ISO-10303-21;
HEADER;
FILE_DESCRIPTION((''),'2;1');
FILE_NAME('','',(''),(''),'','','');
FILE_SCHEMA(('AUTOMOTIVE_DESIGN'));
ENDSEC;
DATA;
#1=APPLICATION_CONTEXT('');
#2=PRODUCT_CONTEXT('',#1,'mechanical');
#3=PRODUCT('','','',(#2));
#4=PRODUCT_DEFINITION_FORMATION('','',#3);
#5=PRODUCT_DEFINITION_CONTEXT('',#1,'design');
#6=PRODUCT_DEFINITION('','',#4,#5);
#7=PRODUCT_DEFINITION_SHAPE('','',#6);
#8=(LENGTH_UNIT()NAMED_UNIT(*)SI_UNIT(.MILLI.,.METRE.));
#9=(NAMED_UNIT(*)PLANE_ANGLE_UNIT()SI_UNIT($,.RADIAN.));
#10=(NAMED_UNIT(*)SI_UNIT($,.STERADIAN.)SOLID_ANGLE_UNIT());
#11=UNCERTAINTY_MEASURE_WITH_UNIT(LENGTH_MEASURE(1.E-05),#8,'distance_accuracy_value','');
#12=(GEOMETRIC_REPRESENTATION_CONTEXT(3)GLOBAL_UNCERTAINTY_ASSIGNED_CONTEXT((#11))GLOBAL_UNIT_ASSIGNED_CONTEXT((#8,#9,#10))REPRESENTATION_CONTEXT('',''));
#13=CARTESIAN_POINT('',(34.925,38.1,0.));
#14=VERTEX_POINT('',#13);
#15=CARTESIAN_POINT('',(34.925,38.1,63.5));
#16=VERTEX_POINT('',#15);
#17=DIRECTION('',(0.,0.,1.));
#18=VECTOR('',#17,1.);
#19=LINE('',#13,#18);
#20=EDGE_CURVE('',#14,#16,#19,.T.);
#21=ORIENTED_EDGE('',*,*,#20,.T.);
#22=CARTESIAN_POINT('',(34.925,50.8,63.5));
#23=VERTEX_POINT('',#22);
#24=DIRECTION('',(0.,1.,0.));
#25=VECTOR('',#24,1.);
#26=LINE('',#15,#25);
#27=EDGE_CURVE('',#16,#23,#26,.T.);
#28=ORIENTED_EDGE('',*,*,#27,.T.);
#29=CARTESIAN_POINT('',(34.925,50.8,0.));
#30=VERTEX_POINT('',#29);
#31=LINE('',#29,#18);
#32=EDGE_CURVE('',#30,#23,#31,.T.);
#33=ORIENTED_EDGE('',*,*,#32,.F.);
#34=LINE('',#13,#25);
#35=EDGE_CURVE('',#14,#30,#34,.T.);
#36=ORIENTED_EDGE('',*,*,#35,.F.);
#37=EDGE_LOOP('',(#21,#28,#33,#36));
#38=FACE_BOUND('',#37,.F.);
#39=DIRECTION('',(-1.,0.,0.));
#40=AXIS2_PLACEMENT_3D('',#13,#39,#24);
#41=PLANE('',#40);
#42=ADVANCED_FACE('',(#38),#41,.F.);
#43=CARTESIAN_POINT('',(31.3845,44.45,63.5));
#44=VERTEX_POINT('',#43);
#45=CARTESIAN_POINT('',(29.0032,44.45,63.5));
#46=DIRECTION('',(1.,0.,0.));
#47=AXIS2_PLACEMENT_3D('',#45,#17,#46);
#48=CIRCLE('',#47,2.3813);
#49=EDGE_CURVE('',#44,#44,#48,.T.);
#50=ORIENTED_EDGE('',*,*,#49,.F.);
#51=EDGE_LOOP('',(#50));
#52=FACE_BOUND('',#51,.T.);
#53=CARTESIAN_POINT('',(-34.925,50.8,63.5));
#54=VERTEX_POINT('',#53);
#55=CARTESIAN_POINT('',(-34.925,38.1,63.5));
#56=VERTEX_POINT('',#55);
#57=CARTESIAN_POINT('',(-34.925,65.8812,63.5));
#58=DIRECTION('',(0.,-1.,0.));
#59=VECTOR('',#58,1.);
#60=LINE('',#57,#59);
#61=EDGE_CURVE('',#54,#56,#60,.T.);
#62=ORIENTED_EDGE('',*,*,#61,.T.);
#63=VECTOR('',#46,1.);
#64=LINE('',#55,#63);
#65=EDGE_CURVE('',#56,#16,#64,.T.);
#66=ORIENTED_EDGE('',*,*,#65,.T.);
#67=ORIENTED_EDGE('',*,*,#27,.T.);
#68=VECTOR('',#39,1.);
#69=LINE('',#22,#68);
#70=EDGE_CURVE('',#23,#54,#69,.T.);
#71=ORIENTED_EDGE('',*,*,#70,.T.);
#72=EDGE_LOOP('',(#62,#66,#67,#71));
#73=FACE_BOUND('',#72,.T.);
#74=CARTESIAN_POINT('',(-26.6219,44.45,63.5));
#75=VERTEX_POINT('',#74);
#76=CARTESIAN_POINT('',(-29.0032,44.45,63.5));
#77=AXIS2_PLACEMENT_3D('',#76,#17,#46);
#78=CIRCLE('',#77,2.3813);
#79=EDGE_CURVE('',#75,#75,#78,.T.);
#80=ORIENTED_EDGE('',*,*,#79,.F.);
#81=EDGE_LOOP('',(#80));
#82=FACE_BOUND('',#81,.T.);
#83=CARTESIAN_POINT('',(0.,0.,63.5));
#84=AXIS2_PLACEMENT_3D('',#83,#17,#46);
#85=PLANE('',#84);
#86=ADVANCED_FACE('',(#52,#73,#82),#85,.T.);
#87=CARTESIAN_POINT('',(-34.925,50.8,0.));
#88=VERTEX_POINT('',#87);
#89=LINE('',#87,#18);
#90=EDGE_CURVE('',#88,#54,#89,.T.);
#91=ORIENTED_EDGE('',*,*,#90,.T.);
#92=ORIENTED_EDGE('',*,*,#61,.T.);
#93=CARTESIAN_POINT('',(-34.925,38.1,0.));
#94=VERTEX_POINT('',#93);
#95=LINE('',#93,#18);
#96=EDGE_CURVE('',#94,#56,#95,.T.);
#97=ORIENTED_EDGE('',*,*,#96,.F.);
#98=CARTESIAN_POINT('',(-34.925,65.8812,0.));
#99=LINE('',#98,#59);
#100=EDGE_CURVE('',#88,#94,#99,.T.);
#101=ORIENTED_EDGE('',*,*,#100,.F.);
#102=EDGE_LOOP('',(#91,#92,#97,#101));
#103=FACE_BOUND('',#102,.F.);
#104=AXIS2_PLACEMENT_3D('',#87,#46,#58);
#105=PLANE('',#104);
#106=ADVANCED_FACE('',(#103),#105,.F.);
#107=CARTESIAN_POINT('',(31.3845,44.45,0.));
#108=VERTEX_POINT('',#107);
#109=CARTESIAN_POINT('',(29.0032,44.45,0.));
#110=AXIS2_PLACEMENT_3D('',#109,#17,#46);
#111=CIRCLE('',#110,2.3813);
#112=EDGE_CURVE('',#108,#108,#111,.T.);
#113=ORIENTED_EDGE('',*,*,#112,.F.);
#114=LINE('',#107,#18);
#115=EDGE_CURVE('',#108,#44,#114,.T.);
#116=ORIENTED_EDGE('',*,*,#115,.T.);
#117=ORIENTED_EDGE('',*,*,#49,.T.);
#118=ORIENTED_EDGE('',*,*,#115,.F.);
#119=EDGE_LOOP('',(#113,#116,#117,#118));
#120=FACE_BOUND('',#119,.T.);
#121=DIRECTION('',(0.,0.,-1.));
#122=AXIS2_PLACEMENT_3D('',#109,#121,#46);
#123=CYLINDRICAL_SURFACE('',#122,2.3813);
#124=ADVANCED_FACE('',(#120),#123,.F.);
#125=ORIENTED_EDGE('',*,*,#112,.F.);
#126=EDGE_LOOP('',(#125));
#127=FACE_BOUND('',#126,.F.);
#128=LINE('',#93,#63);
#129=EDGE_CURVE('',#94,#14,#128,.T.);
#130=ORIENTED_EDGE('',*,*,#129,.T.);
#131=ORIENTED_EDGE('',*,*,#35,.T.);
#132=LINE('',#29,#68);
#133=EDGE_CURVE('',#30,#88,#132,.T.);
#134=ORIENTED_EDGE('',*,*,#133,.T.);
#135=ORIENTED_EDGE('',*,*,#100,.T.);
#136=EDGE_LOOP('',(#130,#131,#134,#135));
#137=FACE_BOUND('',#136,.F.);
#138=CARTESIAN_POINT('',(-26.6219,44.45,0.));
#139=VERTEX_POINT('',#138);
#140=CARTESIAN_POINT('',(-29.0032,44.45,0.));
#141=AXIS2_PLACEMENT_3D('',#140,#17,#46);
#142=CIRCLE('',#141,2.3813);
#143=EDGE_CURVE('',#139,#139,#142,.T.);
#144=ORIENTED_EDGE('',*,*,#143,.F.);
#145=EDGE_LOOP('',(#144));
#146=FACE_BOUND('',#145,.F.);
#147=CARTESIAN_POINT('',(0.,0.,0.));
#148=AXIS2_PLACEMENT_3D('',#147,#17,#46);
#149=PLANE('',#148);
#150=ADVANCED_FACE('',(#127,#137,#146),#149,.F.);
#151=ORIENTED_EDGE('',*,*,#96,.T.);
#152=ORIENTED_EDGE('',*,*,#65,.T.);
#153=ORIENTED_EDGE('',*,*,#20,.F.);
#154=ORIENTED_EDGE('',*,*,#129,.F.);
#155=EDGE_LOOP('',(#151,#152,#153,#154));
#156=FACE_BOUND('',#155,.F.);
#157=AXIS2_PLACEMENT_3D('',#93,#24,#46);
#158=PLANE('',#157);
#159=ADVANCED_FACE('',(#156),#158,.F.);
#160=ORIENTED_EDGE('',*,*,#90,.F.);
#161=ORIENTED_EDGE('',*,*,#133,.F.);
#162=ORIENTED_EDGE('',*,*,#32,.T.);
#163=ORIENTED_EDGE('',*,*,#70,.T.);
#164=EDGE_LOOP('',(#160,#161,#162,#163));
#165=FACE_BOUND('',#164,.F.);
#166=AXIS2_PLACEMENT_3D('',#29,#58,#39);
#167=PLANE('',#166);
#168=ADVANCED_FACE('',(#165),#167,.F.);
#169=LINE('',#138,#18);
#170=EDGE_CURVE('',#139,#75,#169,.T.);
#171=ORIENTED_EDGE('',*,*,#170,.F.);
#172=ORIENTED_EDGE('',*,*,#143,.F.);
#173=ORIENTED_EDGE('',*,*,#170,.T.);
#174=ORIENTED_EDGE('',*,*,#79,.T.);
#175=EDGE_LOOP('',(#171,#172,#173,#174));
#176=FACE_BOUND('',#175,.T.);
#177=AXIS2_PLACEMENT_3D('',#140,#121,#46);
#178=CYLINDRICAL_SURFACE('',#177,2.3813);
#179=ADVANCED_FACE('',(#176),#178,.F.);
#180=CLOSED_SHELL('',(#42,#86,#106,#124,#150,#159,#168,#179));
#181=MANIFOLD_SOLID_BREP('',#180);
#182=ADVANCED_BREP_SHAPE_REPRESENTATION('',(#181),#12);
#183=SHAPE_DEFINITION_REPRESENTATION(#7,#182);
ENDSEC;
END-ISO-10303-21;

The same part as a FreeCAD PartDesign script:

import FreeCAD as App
import Part
import Sketcher
from FreeCAD import Vector
Q = App.Units.Quantity

doc = App.newDocument("Part")
params = doc.addObject("Spreadsheet::Sheet", "Params")
for row, (alias, value) in enumerate([
    ("sketch1_height", "0.5 in"),
    ("sketch1_diameter", "0.1875 in"),
    ("sketch1_width", "2.75 in"),
    ("pad1_length", "2.5 in"),
], start=1):
    params.set(f"A{row}", alias)
    params.set(f"B{row}", "=" + value)
    params.setAlias(f"B{row}", alias)

body = doc.addObject("PartDesign::Body", "Body")

# Sketch on XY plane
sketch1 = body.newObject("Sketcher::SketchObject", "Sketch")
sketch1.AttachmentSupport = (doc.getObject("XY_Plane"), [""])
sketch1.MapMode = "FlatFace"
sketch1.addGeometry(Part.LineSegment(Vector(34.9, 50.8, 0), Vector(-34.9, 50.8, 0)), False)
sketch1.addGeometry(Part.LineSegment(Vector(-34.9, 50.8, 0), Vector(-34.9, 38.1, 0)), False)
sketch1.addGeometry(Part.LineSegment(Vector(-34.9, 38.1, 0), Vector(34.9, 38.1, 0)), False)
sketch1.addGeometry(Part.LineSegment(Vector(34.9, 38.1, 0), Vector(34.9, 50.8, 0)), False)
sketch1.addGeometry(Part.Circle(Vector(-29, 44.5, 0), Vector(0, 0, 1), 2.4), False)
sketch1.addGeometry(Part.Circle(Vector(29, 44.5, 0), Vector(0, 0, 1), 2.4), False)
sketch1.addConstraint(Sketcher.Constraint("Coincident", 0, 2, 1, 1))
sketch1.addConstraint(Sketcher.Constraint("Coincident", 1, 2, 2, 1))
sketch1.addConstraint(Sketcher.Constraint("Coincident", 2, 2, 3, 1))
sketch1.addConstraint(Sketcher.Constraint("Coincident", 3, 2, 0, 1))
sketch1.addConstraint(Sketcher.Constraint("Horizontal", 0))
sketch1.addConstraint(Sketcher.Constraint("Vertical", 1))
sketch1.addConstraint(Sketcher.Constraint("Horizontal", 2))
sketch1.addConstraint(Sketcher.Constraint("Vertical", 3))
sketch1.addConstraint(Sketcher.Constraint("Equal", 4, 5))
sketch1.addConstraint(Sketcher.Constraint("Symmetric", 4, 3, 5, 3, -2))
sketch1.addConstraint(Sketcher.Constraint("DistanceY", 1, 2, 1, 1, Q("0.5 in")))
sketch1.addConstraint(Sketcher.Constraint("DistanceY", 4, 3, 0, 2, Q("0.25 in")))
sketch1.addConstraint(Sketcher.Constraint("Diameter", 4, Q("0.1875 in")))
sketch1.addConstraint(Sketcher.Constraint("DistanceY", -1, 1, 0, 2, Q("2 in")))
sketch1.addConstraint(Sketcher.Constraint("DistanceX", 0, 2, 0, 1, Q("2.75 in")))
sketch1.addConstraint(Sketcher.Constraint("DistanceX", 0, 2, -1, 1, Q("1.375 in")))
sketch1.addConstraint(Sketcher.Constraint("DistanceX", 4, 3, -1, 1, 29.0032))
sketch1.setExpression("Constraints[10]", "Params.sketch1_height")
sketch1.setExpression("Constraints[12]", "Params.sketch1_diameter")
sketch1.setExpression("Constraints[14]", "Params.sketch1_width")
pad1 = body.newObject("PartDesign::Pad", "Pad")
pad1.Profile = sketch1
pad1.setExpression("Length", "Params.pad1_length")

doc.recompute()
